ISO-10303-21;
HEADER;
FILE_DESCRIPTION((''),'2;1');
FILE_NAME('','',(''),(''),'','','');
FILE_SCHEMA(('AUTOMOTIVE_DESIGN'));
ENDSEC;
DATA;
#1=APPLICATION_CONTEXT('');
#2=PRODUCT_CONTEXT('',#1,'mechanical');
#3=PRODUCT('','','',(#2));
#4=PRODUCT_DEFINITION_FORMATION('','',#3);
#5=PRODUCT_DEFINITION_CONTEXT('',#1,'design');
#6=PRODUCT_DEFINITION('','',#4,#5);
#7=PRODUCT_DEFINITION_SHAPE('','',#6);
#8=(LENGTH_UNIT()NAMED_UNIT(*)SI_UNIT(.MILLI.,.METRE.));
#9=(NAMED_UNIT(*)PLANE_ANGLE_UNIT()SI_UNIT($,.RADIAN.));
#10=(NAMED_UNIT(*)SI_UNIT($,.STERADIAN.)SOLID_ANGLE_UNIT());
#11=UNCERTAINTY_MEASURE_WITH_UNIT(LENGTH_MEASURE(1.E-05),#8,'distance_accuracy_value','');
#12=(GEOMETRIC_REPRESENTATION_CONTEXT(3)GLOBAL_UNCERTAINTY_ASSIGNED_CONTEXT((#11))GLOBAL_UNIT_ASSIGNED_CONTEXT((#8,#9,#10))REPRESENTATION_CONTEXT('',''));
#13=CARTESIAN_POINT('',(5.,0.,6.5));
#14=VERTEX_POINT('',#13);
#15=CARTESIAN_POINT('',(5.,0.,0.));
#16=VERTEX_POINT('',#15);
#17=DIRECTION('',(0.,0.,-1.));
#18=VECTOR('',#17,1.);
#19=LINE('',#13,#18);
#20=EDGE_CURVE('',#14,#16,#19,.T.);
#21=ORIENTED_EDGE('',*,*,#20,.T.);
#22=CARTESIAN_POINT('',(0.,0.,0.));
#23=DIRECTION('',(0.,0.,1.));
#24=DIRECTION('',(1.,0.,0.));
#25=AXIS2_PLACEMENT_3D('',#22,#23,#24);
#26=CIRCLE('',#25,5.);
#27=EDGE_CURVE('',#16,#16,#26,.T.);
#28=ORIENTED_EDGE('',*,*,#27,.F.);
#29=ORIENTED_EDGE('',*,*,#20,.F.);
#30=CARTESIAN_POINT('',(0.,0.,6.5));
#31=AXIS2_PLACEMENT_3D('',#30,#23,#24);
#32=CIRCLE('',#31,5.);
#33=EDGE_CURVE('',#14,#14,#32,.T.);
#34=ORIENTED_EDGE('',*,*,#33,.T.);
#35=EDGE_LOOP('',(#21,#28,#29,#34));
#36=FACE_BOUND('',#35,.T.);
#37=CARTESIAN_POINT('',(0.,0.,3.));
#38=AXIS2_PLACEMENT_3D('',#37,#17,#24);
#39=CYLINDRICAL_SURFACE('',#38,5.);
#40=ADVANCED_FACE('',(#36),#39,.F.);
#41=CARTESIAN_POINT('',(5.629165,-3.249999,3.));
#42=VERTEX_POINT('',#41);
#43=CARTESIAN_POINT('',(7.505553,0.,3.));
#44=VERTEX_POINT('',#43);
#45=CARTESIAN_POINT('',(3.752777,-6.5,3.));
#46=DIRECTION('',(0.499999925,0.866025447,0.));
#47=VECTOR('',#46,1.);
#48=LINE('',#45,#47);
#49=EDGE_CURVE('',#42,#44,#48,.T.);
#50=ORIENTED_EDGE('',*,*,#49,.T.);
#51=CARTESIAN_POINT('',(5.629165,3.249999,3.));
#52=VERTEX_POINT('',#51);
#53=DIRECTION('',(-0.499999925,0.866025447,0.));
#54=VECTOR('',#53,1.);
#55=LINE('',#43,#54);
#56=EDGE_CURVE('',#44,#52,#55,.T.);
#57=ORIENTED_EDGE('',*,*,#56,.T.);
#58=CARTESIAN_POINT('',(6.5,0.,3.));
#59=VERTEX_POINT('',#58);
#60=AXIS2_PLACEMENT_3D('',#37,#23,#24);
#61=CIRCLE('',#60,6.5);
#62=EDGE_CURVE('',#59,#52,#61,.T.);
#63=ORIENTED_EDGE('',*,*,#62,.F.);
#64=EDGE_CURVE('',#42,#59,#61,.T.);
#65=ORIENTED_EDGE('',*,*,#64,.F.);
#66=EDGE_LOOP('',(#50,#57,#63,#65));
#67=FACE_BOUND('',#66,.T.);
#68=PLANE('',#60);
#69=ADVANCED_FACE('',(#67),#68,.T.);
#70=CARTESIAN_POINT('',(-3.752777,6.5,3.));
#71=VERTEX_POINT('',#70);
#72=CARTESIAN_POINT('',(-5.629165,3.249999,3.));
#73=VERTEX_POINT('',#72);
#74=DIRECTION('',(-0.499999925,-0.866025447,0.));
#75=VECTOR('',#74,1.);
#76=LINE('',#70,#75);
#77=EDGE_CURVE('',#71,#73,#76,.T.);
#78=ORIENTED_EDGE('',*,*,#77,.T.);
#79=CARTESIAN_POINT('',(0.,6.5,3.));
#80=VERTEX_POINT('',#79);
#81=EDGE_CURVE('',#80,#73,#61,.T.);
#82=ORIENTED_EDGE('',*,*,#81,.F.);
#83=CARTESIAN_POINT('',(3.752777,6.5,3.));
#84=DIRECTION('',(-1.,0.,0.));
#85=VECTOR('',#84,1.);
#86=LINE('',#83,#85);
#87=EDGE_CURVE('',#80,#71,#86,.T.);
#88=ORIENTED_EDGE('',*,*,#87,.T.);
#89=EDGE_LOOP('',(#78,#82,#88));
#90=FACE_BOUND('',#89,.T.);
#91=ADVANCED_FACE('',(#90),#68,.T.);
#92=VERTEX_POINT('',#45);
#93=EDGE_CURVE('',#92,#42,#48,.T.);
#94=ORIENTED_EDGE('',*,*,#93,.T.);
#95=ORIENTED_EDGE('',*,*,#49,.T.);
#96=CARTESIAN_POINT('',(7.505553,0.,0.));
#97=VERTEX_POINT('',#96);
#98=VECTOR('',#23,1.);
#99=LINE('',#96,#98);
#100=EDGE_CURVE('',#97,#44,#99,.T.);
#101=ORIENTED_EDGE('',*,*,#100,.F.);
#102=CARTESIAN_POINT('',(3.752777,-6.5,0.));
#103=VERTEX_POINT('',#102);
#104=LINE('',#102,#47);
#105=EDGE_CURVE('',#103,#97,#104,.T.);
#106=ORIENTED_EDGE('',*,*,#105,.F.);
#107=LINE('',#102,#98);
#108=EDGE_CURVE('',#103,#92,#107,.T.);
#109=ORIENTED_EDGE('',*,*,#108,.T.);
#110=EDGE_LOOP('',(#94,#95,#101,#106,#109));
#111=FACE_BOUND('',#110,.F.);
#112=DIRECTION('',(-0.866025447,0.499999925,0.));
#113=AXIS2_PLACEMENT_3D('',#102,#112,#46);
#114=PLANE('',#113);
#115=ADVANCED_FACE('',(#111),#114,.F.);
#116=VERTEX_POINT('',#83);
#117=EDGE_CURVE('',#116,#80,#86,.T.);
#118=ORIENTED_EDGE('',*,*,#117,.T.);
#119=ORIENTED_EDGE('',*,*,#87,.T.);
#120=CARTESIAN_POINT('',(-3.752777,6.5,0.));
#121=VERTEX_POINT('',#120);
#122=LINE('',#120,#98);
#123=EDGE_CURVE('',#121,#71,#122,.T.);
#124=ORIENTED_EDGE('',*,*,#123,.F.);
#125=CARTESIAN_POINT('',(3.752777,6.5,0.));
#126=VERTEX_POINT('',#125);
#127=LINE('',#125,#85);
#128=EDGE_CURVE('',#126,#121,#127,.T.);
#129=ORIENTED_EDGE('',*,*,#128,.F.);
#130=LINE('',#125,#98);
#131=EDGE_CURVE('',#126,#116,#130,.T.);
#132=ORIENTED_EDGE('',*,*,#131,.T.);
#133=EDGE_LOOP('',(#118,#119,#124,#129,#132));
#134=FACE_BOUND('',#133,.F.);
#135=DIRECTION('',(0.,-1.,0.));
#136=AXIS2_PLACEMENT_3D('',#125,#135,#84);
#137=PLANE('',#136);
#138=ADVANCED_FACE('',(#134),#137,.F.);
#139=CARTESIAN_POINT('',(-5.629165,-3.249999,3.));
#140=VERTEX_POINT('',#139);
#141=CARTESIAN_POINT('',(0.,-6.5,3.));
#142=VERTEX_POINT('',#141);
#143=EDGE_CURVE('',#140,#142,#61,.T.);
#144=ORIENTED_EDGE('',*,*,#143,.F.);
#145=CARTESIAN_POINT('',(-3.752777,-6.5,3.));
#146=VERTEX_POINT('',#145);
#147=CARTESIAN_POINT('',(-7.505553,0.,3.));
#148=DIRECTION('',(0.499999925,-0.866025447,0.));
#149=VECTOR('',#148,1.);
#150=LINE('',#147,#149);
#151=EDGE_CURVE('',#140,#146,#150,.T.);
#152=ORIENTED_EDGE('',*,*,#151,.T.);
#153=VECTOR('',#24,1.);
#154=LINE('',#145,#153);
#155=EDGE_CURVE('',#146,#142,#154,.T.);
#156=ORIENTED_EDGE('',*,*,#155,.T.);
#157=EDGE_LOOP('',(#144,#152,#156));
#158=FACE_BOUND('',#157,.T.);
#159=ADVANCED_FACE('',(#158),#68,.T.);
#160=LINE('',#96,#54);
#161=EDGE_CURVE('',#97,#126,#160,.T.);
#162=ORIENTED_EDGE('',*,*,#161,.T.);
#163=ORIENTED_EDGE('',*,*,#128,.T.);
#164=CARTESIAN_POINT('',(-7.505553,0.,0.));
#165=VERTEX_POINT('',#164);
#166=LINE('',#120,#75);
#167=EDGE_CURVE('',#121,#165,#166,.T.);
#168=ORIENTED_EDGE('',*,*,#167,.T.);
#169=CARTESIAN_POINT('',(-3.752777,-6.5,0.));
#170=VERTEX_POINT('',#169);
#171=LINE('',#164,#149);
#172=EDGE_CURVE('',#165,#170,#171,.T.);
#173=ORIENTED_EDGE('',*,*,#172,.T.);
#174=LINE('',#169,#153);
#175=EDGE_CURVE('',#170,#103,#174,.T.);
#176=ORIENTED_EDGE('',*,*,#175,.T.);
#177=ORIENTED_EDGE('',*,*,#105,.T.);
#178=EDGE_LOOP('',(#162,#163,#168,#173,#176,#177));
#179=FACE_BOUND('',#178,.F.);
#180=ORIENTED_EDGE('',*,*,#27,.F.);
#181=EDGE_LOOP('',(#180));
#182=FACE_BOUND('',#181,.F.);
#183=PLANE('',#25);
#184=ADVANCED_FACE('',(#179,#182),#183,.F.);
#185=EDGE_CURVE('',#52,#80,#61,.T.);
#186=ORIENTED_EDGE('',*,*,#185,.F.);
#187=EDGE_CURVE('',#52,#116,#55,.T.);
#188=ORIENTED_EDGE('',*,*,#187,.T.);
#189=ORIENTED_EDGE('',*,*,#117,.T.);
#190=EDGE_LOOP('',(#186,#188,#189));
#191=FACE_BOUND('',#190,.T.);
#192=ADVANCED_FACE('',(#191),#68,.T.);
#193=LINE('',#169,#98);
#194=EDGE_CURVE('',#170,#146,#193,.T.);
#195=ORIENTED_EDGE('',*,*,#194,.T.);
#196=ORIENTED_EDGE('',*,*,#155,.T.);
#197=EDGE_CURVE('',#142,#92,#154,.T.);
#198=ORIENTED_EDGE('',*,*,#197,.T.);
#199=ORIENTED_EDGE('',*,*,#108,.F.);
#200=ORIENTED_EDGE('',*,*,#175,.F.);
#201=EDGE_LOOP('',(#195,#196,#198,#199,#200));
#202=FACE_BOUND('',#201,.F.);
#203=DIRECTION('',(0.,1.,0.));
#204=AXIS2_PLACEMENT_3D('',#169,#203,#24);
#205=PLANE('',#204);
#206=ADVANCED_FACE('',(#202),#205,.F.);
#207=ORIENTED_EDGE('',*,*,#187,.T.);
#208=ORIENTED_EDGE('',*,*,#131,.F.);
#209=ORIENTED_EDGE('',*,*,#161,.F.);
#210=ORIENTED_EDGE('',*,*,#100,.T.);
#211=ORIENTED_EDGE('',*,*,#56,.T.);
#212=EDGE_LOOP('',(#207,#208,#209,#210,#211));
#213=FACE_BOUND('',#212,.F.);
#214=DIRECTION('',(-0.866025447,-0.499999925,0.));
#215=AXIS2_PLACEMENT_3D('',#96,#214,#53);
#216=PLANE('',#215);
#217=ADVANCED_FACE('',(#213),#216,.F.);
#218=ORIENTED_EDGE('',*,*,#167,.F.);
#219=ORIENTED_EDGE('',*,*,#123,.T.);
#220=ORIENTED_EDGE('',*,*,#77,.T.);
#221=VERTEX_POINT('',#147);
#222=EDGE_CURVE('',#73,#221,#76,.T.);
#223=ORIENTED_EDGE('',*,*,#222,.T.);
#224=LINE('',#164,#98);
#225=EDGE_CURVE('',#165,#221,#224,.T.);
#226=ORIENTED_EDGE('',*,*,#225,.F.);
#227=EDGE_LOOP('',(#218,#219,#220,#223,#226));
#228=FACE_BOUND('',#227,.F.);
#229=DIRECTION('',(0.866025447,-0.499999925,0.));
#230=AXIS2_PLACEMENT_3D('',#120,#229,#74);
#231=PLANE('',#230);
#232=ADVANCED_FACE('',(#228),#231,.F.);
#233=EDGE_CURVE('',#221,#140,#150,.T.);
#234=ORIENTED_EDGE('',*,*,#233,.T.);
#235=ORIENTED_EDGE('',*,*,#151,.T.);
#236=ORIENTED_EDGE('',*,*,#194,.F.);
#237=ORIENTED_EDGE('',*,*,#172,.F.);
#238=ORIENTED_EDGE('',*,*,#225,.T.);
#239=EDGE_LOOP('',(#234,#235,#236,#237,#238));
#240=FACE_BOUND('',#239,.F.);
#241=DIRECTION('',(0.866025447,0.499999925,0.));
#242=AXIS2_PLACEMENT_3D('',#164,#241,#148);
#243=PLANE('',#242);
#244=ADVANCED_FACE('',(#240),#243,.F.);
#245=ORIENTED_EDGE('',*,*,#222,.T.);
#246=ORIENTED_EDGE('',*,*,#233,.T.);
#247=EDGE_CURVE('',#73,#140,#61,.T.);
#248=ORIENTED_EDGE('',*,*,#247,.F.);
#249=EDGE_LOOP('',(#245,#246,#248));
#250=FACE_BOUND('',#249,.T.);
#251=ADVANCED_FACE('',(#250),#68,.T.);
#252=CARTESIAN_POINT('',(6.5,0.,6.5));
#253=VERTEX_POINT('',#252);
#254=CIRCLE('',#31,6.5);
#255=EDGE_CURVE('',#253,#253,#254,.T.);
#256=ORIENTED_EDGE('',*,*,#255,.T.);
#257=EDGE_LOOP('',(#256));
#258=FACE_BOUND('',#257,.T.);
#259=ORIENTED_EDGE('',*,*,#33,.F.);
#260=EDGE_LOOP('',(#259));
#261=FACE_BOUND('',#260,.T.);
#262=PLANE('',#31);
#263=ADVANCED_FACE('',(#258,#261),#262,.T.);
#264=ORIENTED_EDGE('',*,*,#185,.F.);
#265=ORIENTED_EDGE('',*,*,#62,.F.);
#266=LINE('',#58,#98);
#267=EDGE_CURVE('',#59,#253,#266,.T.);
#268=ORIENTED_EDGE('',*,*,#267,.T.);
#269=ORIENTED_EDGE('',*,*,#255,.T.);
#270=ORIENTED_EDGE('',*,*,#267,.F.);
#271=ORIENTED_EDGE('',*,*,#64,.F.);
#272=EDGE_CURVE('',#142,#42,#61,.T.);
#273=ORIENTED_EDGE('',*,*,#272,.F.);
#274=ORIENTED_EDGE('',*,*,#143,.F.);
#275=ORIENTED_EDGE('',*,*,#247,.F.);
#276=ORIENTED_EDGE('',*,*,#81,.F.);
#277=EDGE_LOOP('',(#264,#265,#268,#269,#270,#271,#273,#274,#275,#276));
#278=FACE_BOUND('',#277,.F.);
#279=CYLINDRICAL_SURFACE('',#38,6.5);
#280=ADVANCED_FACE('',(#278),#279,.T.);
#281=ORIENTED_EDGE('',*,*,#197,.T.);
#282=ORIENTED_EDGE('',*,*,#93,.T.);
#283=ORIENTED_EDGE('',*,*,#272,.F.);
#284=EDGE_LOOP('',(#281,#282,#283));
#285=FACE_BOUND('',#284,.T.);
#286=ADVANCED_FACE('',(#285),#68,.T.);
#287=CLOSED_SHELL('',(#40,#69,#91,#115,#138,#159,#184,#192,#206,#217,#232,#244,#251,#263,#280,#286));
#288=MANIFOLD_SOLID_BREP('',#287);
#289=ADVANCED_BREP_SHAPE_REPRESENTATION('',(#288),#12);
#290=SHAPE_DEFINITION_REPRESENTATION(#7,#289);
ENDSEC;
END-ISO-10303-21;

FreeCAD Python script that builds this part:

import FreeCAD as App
import Part
import Sketcher
Q = App.Units.Quantity

doc = App.newDocument("Part")
body = doc.addObject("PartDesign::Body", "Body")

# Sketch on XY plane
sketch1 = body.newObject("Sketcher::SketchObject", "Sketch")
sketch1.AttachmentSupport = (doc.getObject("XY_Plane"), [""])
sketch1.MapMode = "FlatFace"
sketch1.addGeometry(Part.LineSegment(App.Vector(8, 0, 0), App.Vector(4, 6, 0)), False)
sketch1.addGeometry(Part.LineSegment(App.Vector(4, 6, 0), App.Vector(-4, 6, 0)), False)
sketch1.addGeometry(Part.LineSegment(App.Vector(-4, 6, 0), App.Vector(-8, 0, 0)), False)
sketch1.addGeometry(Part.LineSegment(App.Vector(-8, 0, 0), App.Vector(-4, -6, 0)), False)
sketch1.addGeometry(Part.LineSegment(App.Vector(-4, -6, 0), App.Vector(4, -6, 0)), False)
sketch1.addGeometry(Part.LineSegment(App.Vector(4, -6, 0), App.Vector(8, 0, 0)), False)
sketch1.addGeometry(Part.Circle(App.Vector(0, 0, 0), App.Vector(0, 0, 1), 5), False)
sketch1.addConstraint(Sketcher.Constraint("Coincident", 0, 2, 1, 1))
sketch1.addConstraint(Sketcher.Constraint("Coincident", 1, 2, 2, 1))
sketch1.addConstraint(Sketcher.Constraint("Coincident", 2, 2, 3, 1))
sketch1.addConstraint(Sketcher.Constraint("Coincident", 3, 2, 4, 1))
sketch1.addConstraint(Sketcher.Constraint("Coincident", 4, 2, 5, 1))
sketch1.addConstraint(Sketcher.Constraint("Coincident", 5, 2, 0, 1))
sketch1.addConstraint(Sketcher.Constraint("Horizontal", 1))
sketch1.addConstraint(Sketcher.Constraint("Horizontal", 4))
sketch1.addConstraint(Sketcher.Constraint("Coincident", 6, 3, -1, 1))
sketch1.addConstraint(Sketcher.Constraint("Symmetric", 0, 2, 3, 2, -1, 1))
sketch1.addConstraint(Sketcher.Constraint("Symmetric", 2, 2, 5, 2, -1, 1))
sketch1.addConstraint(Sketcher.Constraint("PointOnObject", 2, 2, -1))
sketch1.addConstraint(Sketcher.Constraint("Parallel", 2, 5))
sketch1.addConstraint(Sketcher.Constraint("Vertical", 1, 2, 3, 2))
sketch1.addConstraint(Sketcher.Constraint("Diameter", 6, 10.0))
sketch1.addConstraint(Sketcher.Constraint("Angle", 0, Q("119.999995 deg")))
sketch1.addConstraint(Sketcher.Constraint("DistanceY", 3, 2, 1, 2, 13.0))
sketch1.addConstraint(Sketcher.Constraint("DistanceX", 1, 2, 1, 1, 7.505554))
pad1 = body.newObject("PartDesign::Pad", "Pad")
pad1.Profile = sketch1
pad1.Length = 3

# Sketch on XY plane
sketch2 = body.newObject("Sketcher::SketchObject", "Sketch001")
sketch2.AttachmentSupport = (doc.getObject("XY_Plane"), [""])
sketch2.MapMode = "FlatFace"
sketch2.AttachmentOffset = App.Placement(App.Vector(0, 0, 3), App.Rotation())
sketch2.addGeometry(Part.Circle(App.Vector(0, 0, 0), App.Vector(0, 0, 1), 6), False)
sketch2.addGeometry(Part.Circle(App.Vector(0, 0, 0), App.Vector(0, 0, 1), 5), False)
sketch2.addConstraint(Sketcher.Constraint("Coincident", 0, 3, -1, 1))
sketch2.addConstraint(Sketcher.Constraint("Coincident", 1, 3, -1, 1))
sketch2.addConstraint(Sketcher.Constraint("Diameter", 0, 13.0))
sketch2.addConstraint(Sketcher.Constraint("Diameter", 1, 10.0))
pad2 = body.newObject("PartDesign::Pad", "Pad001")
pad2.Profile = sketch2
pad2.Length = 3.5

doc.recompute()
